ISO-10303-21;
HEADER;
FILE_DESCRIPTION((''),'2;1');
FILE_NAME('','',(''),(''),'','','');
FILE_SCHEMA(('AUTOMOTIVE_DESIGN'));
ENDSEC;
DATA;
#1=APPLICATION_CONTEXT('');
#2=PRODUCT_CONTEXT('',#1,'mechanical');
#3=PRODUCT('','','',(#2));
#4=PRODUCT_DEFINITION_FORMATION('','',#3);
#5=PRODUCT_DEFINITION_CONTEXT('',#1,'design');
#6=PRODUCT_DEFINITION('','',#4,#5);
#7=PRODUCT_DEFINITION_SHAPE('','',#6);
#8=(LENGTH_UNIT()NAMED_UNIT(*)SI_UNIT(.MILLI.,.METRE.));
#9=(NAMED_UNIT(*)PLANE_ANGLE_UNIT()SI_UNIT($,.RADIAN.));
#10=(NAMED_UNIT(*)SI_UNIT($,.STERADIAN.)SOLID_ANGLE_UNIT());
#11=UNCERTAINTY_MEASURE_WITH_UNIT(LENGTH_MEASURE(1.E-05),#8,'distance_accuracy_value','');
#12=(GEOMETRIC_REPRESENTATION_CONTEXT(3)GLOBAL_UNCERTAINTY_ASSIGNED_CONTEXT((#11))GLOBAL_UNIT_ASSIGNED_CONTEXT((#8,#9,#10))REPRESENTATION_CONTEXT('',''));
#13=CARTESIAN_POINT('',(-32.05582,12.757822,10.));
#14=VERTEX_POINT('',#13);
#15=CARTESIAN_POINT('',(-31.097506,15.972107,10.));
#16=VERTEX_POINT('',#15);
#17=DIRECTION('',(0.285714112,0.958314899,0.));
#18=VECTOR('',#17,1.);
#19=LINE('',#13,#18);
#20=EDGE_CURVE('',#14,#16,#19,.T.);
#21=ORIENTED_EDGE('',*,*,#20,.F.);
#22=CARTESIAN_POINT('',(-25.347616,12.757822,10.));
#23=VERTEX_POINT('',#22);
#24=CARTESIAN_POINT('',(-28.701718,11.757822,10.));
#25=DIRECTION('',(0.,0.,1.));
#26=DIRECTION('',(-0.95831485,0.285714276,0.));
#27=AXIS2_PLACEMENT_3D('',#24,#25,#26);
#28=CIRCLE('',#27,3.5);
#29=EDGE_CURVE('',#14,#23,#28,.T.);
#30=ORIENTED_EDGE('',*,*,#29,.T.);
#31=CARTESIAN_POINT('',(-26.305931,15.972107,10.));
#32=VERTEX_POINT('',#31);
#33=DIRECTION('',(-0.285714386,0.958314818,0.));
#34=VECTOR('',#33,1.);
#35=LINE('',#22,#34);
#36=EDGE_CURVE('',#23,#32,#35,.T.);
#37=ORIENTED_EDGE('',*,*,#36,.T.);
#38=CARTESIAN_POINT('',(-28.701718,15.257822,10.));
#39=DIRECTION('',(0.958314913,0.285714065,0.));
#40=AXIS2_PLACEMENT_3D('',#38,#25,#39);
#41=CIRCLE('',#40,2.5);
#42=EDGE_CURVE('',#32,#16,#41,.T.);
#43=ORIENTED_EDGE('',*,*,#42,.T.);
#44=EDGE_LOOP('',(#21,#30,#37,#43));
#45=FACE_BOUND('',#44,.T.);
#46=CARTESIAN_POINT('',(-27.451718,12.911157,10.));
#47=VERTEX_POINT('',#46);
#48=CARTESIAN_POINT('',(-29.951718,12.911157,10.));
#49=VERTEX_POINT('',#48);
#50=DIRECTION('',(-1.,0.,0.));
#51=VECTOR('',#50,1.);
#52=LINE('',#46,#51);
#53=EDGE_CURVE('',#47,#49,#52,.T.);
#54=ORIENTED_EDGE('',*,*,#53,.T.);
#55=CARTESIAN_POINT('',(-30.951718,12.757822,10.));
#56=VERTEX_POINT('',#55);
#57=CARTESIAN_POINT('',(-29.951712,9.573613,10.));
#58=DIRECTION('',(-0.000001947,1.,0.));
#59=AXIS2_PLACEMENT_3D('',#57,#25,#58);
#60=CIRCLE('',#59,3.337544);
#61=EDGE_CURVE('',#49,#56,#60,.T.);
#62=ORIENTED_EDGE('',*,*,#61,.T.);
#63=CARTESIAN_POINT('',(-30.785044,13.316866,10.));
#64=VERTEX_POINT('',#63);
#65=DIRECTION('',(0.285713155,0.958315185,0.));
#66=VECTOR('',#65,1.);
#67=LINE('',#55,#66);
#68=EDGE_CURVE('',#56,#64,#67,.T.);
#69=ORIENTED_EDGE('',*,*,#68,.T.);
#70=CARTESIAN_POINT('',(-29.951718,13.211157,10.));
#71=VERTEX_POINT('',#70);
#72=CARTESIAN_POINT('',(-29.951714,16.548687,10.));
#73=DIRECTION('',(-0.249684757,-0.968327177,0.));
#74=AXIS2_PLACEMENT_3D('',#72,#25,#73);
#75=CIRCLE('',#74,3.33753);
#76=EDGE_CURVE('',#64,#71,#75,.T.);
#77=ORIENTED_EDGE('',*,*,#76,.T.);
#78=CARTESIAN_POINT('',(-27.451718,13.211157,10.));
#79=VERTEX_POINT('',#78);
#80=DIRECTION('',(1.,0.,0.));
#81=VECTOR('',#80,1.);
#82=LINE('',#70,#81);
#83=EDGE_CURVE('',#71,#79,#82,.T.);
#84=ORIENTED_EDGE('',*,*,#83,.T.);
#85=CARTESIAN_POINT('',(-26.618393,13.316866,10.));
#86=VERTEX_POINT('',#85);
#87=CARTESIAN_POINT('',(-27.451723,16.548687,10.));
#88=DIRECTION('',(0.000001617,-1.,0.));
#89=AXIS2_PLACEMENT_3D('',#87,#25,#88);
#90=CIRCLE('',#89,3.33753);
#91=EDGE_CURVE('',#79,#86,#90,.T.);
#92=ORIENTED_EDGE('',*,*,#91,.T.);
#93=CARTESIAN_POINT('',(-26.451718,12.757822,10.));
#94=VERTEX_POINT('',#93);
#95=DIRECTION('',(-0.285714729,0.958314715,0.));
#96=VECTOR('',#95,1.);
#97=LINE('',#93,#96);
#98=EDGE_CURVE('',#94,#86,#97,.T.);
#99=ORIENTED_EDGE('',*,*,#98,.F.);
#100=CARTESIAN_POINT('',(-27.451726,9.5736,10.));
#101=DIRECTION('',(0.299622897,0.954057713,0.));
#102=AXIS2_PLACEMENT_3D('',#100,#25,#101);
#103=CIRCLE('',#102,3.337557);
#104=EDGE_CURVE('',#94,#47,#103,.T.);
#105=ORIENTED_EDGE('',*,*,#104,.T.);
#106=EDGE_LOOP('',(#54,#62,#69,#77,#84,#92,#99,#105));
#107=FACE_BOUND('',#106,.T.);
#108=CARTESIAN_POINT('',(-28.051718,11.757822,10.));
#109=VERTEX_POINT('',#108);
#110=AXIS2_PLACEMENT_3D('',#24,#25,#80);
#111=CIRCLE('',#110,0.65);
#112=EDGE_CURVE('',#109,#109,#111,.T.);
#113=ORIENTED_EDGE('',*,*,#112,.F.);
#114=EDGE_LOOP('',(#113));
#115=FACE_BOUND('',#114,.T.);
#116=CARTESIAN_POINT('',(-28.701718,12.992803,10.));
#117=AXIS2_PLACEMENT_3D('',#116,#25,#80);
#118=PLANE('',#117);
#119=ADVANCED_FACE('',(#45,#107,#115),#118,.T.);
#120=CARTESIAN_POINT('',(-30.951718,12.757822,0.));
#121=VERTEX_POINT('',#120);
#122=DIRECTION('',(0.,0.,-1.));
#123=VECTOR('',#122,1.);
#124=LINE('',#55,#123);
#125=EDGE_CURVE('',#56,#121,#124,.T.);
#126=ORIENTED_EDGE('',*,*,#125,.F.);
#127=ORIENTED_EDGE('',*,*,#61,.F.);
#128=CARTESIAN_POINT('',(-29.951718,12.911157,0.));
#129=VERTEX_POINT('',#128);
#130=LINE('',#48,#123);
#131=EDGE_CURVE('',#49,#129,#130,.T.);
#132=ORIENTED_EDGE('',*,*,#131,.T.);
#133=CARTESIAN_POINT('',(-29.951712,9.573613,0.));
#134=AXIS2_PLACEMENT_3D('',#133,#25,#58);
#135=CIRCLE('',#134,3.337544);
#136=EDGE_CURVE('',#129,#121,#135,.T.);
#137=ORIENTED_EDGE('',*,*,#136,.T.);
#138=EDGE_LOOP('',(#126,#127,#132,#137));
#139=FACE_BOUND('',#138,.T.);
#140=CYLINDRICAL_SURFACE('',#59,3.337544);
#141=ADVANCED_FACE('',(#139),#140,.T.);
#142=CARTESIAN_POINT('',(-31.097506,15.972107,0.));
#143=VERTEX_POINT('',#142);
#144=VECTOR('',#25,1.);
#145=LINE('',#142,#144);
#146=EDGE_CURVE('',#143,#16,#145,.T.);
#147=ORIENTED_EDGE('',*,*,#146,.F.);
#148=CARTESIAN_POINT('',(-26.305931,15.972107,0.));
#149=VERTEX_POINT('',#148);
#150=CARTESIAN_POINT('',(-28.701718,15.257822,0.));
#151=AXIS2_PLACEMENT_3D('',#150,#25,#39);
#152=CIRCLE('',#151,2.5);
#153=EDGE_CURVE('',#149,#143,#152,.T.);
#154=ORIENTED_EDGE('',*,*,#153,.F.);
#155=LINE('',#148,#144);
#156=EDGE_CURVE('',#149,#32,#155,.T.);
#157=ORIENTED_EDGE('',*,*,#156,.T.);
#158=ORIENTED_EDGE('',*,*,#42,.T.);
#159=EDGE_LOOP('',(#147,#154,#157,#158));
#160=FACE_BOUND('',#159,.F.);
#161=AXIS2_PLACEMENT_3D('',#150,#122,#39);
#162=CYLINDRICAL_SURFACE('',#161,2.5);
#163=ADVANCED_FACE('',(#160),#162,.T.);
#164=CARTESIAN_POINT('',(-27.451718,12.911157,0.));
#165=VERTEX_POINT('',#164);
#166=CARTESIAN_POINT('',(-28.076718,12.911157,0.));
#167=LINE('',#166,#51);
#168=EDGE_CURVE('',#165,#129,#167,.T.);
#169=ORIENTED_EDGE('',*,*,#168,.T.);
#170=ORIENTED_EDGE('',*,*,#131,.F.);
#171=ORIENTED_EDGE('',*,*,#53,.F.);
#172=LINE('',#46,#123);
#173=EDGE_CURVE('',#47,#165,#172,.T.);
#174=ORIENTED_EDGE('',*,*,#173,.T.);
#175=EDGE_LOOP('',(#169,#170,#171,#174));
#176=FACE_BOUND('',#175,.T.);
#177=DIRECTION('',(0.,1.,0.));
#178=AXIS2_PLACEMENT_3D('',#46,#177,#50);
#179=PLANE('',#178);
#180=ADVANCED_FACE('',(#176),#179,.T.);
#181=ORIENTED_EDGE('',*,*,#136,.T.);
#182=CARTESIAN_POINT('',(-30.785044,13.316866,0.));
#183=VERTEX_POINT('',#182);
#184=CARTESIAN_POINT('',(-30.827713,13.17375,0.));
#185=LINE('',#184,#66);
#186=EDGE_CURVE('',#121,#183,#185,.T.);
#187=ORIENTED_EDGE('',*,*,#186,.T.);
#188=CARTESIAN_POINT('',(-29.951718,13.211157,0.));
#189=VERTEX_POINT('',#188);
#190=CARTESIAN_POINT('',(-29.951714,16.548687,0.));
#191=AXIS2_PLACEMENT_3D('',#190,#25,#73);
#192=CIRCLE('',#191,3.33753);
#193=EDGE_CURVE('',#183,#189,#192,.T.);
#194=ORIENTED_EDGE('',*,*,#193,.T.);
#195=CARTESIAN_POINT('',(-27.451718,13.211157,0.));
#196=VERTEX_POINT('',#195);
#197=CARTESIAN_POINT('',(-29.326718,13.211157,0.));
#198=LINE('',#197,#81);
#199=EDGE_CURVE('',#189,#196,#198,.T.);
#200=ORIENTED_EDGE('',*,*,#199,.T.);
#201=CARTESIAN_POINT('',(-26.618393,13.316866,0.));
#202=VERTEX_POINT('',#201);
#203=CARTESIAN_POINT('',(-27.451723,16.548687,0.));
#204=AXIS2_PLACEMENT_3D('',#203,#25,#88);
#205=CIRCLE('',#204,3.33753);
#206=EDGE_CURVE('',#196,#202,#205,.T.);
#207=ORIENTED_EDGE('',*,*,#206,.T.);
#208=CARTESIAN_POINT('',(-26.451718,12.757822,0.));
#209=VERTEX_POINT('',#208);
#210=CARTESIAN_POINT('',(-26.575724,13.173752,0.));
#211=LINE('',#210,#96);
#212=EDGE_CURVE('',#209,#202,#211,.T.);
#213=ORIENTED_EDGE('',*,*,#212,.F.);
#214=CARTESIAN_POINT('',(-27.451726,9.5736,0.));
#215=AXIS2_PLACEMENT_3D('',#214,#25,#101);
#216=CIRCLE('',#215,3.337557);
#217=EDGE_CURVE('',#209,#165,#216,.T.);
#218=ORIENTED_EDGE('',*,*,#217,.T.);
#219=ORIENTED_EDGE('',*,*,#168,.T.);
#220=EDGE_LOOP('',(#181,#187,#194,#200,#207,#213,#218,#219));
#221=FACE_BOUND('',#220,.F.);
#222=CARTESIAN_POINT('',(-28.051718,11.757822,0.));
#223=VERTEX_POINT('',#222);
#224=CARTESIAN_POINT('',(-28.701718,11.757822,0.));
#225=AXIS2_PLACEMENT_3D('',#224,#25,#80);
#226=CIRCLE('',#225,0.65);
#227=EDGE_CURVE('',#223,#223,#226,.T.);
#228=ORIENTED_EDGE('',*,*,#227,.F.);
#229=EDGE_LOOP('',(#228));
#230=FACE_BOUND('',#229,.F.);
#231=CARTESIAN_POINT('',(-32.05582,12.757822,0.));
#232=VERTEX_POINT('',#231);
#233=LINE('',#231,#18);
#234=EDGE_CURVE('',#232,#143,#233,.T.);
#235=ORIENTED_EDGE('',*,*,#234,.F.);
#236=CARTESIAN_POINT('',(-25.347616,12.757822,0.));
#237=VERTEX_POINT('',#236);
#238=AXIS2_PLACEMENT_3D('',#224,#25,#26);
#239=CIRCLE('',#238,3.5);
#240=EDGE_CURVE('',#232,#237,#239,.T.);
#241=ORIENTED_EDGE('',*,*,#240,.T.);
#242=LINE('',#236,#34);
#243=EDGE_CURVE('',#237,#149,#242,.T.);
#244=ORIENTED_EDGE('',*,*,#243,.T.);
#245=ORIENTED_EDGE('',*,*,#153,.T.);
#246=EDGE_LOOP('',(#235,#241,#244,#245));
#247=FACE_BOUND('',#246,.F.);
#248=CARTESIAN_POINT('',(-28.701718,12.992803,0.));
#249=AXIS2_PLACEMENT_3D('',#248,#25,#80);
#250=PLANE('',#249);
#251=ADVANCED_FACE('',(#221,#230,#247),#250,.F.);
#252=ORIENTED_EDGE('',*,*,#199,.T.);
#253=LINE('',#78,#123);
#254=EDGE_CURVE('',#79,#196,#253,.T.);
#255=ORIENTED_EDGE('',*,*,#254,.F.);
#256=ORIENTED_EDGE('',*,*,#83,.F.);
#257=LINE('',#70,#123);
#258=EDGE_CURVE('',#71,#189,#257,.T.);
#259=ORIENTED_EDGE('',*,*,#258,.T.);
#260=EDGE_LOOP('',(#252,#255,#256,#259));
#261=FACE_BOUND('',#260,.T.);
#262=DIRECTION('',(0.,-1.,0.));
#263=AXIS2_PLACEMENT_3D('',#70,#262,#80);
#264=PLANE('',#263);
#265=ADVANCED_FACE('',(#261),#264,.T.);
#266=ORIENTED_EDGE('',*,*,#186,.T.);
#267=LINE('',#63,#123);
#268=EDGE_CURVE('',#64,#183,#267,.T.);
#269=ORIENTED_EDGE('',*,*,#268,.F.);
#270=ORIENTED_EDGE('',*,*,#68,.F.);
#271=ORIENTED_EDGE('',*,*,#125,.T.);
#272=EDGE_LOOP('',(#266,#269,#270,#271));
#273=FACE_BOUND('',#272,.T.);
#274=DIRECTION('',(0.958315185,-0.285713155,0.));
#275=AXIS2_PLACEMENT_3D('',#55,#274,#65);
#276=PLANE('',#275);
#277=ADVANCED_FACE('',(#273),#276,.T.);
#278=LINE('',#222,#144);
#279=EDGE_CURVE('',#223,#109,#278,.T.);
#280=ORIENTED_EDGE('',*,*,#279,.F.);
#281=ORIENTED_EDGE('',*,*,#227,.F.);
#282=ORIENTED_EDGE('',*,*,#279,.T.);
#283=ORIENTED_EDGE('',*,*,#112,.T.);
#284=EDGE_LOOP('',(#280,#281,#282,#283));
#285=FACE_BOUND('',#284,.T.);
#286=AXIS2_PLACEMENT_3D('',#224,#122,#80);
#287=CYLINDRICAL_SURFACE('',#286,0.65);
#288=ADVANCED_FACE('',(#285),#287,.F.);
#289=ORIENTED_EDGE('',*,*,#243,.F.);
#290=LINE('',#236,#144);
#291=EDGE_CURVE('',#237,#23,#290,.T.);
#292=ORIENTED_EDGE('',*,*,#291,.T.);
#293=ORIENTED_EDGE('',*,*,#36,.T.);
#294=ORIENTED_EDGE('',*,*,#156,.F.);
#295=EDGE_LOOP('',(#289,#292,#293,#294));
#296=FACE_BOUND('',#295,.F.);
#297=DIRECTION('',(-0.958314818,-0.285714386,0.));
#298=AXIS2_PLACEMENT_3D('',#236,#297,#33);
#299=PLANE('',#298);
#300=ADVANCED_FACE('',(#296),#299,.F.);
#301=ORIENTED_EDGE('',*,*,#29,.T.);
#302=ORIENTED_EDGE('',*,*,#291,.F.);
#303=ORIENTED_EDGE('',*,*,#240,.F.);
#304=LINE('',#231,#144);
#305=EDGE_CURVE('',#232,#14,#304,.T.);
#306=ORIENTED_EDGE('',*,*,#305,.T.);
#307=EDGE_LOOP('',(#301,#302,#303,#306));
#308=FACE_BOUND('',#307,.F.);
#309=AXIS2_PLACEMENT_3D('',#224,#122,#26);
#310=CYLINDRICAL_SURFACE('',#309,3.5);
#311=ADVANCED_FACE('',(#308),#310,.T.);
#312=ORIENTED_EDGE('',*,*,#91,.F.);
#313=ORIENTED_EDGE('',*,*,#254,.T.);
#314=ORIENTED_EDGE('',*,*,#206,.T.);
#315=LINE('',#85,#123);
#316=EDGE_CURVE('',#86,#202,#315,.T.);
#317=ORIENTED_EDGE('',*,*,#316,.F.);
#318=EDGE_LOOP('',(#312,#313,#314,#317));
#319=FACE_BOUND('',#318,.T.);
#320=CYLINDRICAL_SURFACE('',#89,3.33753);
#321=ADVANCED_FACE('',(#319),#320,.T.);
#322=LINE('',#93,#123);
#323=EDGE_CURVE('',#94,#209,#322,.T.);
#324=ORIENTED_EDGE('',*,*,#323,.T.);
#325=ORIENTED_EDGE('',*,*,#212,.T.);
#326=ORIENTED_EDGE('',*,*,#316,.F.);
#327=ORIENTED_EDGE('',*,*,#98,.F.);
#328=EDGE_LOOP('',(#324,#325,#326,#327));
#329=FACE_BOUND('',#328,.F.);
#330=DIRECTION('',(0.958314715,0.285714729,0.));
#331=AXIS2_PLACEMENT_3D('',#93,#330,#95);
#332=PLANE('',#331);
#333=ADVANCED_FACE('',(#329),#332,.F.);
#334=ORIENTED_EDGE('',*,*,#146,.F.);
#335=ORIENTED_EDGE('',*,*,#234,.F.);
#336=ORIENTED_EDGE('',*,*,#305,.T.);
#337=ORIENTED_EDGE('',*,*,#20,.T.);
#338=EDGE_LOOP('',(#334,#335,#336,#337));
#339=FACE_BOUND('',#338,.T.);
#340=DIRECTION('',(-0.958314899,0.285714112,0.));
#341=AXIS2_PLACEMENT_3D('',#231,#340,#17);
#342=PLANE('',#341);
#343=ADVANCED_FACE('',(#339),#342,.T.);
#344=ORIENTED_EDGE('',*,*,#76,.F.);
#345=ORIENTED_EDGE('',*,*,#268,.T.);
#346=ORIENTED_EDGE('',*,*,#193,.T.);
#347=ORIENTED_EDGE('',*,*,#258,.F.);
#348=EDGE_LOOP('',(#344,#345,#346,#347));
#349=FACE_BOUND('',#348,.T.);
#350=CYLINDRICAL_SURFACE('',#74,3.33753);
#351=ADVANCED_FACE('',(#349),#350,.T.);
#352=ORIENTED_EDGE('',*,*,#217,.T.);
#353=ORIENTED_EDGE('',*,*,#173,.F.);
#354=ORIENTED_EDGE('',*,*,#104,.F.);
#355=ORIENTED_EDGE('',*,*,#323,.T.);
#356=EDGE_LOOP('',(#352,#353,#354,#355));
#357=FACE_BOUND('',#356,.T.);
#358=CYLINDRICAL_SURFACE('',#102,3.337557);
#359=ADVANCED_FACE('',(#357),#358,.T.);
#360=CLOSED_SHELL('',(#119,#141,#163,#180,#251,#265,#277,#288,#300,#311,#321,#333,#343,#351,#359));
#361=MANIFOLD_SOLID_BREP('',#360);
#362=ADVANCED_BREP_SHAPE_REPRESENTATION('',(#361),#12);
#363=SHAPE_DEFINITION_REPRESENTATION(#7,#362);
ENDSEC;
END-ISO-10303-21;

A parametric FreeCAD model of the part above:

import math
import FreeCAD as App
import Part
import Sketcher
from FreeCAD import Vector
Q = App.Units.Quantity

doc = App.newDocument("Part")
params = doc.addObject("Spreadsheet::Sheet", "Params")
for row, (alias, value) in enumerate([
    ("sketch1_diameter", "1.3 mm"),
    ("sketch1_radius", "3.5 mm"),
    ("sketch1_radius2", "2.5 mm"),
    ("sketch1_height", "1 mm"),
    ("pad1_length", "10 mm"),
    ("sketch2_width", "2.5 mm"),
    ("sketch2_width2", "2.5 mm"),
], start=1):
    params.set(f"A{row}", alias)
    params.set(f"B{row}", "=" + value)
    params.setAlias(f"B{row}", alias)

body = doc.addObject("PartDesign::Body", "Body")

# Sketch on XY plane
sketch1 = doc.addObject("Sketcher::SketchObject", "Sketch")
body.addObject(sketch1)
sketch1.AttachmentSupport = (doc.XY_Plane, [""])
sketch1.MapMode = "FlatFace"
sketch1.addGeometry([
    Part.ArcOfCircle(Part.Circle(Vector(-28.7, 11.8, 0), Vector(0, 0, 1), 3.5), math.radians(163), math.radians(377)),  # 0
    Part.LineSegment(Vector(-25.3, 12.8, 0), Vector(-26.3, 16, 0)),  # 1
    Part.ArcOfCircle(Part.Circle(Vector(-28.7, 15.3, 0), Vector(0, 0, 1), 2.5), math.radians(17), math.radians(163)),  # 2
    Part.LineSegment(Vector(-31.1, 16, 0), Vector(-32.1, 12.8, 0)),  # 3
    Part.Circle(Vector(-28.7, 11.8, 0), Vector(0, 0, 1), 0.7),  # 4
], False)
sketch1.addConstraint([
    Sketcher.Constraint("Tangent", 0, 2, 1, 1),
    Sketcher.Constraint("Tangent", 1, 2, 2, 1),
    Sketcher.Constraint("Tangent", 2, 2, 3, 1),
    Sketcher.Constraint("Tangent", 3, 2, 0, 1),
    Sketcher.Constraint("Coincident", 4, 3, 0, 3),
    Sketcher.Constraint("Horizontal", 1, 2, 2, 2),
    Sketcher.Constraint("Diameter", 4, Q("1.3 mm")),
    Sketcher.Constraint("Radius", 0, Q("3.5 mm")),
    Sketcher.Constraint("Radius", 2, Q("2.5 mm")),
    Sketcher.Constraint("DistanceY", 0, 3, 0, 2, Q("1 mm")),
    Sketcher.Constraint("DistanceX", 2, 3, -1, 1, Q("28.701718 mm")),
    Sketcher.Constraint("DistanceY", -1, 1, 2, 3, Q("15.257822 mm")),
])
sketch1.setExpression("Constraints[6]", "Params.sketch1_diameter")
sketch1.setExpression("Constraints[7]", "Params.sketch1_radius")
sketch1.setExpression("Constraints[8]", "Params.sketch1_radius2")
sketch1.setExpression("Constraints[9]", "Params.sketch1_height")
pad1 = doc.addObject("PartDesign::Pad", "Pad")
body.addObject(pad1)
pad1.Profile = sketch1
pad1.setExpression("Length", "Params.pad1_length")

# Sketch on XY plane
sketch2 = doc.addObject("Sketcher::SketchObject", "Sketch001")
body.addObject(sketch2)
sketch2.AttachmentSupport = (doc.XY_Plane, [""])
sketch2.MapMode = "FlatFace"
sketch2.AttachmentOffset = App.Placement(Vector(0, 0, 10), App.Rotation())
sketch2.addGeometry([
    Part.ArcOfCircle(Part.Circle(Vector(-29.951714, 16.548687, 0), Vector(0, 0, 1), 3.33753), math.radians(-104.458859), math.radians(-90.000075)),  # 0
    Part.LineSegment(Vector(-30.785044, 13.316866, 0), Vector(-30.951718, 12.757822, 0)),  # 1
    Part.ArcOfCircle(Part.Circle(Vector(-29.951712, 9.573613, 0), Vector(0, 0, 1), 3.337544), math.radians(90.000112), math.radians(107.434989)),  # 2
    Part.LineSegment(Vector(-29.951718, 12.911157, 0), Vector(-27.451718, 12.911157, 0)),  # 3
    Part.ArcOfCircle(Part.Circle(Vector(-27.451726, 9.5736, 0), Vector(0, 0, 1), 3.337557), math.radians(72.565045), math.radians(89.999854)),  # 4
    Part.LineSegment(Vector(-26.451718, 12.757822, 0), Vector(-26.618393, 13.316866, 0)),  # 5
    Part.ArcOfCircle(Part.Circle(Vector(-27.451723, 16.548687, 0), Vector(0, 0, 1), 3.33753), math.radians(-89.999907), math.radians(-75.541141)),  # 6
    Part.LineSegment(Vector(-27.451718, 13.211157, 0), Vector(-29.951718, 13.211157, 0)),  # 7
], False)
sketch2.addConstraint([
    Sketcher.Constraint("Coincident", 0, 1, 1, 1),
    Sketcher.Constraint("Coincident", 1, 2, 2, 2),
    Sketcher.Constraint("Coincident", 2, 1, 3, 1),
    Sketcher.Constraint("Coincident", 3, 2, 4, 2),
    Sketcher.Constraint("Coincident", 4, 1, 5, 1),
    Sketcher.Constraint("Coincident", 5, 2, 6, 2),
    Sketcher.Constraint("Coincident", 6, 1, 7, 1),
    Sketcher.Constraint("Coincident", 7, 2, 0, 2),
    Sketcher.Constraint("Horizontal", 3),
    Sketcher.Constraint("Horizontal", 7),
    Sketcher.Constraint("DistanceX", 3, 1, 3, 2, Q("2.5 mm")),
    Sketcher.Constraint("DistanceX", 7, 2, 7, 1, Q("2.5 mm")),
    Sketcher.Constraint("DistanceX", 1, 2, 2, 1, Q("1 mm")),
    Sketcher.Constraint("DistanceX", 3, 2, 4, 1, Q("1 mm")),
    Sketcher.Constraint("DistanceX", 6, 1, 4, 1, Q("1 mm")),
    Sketcher.Constraint("DistanceY", 3, 2, 6, 1, Q("0.3 mm")),
    Sketcher.Constraint("Radius", 0, Q("3.33753 mm")),
    Sketcher.Constraint("Radius", 6, Q("3.33753 mm")),
    Sketcher.Constraint("Radius", 2, Q("3.337544 mm")),
    Sketcher.Constraint("Radius", 4, Q("3.337557 mm")),
    Sketcher.Constraint("DistanceY", -1, 1, 4, 3, Q("9.5736 mm")),
    Sketcher.Constraint("Distance", 1, Q("0.583361 mm")),
    Sketcher.Constraint("Distance", 5, Q("0.583362 mm")),
    Sketcher.Constraint("DistanceX", 2, 3, -1, 1, Q("29.951712 mm")),
    Sketcher.Constraint("DistanceX", 0, 3, 6, 3, Q("2.49999 mm")),
    Sketcher.Constraint("DistanceX", 2, 3, 6, 3, Q("2.499988 mm")),
    Sketcher.Constraint("DistanceX", 0, 1, 0, 3, Q("0.83333 mm")),
    Sketcher.Constraint("DistanceX", 1, 2, 4, 3, Q("3.499992 mm")),
])
sketch2.setExpression("Constraints[10]", "Params.sketch2_width")
sketch2.setExpression("Constraints[11]", "Params.sketch2_width2")
pocket1 = doc.addObject("PartDesign::Pocket", "Pocket")
body.addObject(pocket1)
pocket1.Profile = sketch2
pocket1.Type = "ThroughAll"

doc.recompute()
